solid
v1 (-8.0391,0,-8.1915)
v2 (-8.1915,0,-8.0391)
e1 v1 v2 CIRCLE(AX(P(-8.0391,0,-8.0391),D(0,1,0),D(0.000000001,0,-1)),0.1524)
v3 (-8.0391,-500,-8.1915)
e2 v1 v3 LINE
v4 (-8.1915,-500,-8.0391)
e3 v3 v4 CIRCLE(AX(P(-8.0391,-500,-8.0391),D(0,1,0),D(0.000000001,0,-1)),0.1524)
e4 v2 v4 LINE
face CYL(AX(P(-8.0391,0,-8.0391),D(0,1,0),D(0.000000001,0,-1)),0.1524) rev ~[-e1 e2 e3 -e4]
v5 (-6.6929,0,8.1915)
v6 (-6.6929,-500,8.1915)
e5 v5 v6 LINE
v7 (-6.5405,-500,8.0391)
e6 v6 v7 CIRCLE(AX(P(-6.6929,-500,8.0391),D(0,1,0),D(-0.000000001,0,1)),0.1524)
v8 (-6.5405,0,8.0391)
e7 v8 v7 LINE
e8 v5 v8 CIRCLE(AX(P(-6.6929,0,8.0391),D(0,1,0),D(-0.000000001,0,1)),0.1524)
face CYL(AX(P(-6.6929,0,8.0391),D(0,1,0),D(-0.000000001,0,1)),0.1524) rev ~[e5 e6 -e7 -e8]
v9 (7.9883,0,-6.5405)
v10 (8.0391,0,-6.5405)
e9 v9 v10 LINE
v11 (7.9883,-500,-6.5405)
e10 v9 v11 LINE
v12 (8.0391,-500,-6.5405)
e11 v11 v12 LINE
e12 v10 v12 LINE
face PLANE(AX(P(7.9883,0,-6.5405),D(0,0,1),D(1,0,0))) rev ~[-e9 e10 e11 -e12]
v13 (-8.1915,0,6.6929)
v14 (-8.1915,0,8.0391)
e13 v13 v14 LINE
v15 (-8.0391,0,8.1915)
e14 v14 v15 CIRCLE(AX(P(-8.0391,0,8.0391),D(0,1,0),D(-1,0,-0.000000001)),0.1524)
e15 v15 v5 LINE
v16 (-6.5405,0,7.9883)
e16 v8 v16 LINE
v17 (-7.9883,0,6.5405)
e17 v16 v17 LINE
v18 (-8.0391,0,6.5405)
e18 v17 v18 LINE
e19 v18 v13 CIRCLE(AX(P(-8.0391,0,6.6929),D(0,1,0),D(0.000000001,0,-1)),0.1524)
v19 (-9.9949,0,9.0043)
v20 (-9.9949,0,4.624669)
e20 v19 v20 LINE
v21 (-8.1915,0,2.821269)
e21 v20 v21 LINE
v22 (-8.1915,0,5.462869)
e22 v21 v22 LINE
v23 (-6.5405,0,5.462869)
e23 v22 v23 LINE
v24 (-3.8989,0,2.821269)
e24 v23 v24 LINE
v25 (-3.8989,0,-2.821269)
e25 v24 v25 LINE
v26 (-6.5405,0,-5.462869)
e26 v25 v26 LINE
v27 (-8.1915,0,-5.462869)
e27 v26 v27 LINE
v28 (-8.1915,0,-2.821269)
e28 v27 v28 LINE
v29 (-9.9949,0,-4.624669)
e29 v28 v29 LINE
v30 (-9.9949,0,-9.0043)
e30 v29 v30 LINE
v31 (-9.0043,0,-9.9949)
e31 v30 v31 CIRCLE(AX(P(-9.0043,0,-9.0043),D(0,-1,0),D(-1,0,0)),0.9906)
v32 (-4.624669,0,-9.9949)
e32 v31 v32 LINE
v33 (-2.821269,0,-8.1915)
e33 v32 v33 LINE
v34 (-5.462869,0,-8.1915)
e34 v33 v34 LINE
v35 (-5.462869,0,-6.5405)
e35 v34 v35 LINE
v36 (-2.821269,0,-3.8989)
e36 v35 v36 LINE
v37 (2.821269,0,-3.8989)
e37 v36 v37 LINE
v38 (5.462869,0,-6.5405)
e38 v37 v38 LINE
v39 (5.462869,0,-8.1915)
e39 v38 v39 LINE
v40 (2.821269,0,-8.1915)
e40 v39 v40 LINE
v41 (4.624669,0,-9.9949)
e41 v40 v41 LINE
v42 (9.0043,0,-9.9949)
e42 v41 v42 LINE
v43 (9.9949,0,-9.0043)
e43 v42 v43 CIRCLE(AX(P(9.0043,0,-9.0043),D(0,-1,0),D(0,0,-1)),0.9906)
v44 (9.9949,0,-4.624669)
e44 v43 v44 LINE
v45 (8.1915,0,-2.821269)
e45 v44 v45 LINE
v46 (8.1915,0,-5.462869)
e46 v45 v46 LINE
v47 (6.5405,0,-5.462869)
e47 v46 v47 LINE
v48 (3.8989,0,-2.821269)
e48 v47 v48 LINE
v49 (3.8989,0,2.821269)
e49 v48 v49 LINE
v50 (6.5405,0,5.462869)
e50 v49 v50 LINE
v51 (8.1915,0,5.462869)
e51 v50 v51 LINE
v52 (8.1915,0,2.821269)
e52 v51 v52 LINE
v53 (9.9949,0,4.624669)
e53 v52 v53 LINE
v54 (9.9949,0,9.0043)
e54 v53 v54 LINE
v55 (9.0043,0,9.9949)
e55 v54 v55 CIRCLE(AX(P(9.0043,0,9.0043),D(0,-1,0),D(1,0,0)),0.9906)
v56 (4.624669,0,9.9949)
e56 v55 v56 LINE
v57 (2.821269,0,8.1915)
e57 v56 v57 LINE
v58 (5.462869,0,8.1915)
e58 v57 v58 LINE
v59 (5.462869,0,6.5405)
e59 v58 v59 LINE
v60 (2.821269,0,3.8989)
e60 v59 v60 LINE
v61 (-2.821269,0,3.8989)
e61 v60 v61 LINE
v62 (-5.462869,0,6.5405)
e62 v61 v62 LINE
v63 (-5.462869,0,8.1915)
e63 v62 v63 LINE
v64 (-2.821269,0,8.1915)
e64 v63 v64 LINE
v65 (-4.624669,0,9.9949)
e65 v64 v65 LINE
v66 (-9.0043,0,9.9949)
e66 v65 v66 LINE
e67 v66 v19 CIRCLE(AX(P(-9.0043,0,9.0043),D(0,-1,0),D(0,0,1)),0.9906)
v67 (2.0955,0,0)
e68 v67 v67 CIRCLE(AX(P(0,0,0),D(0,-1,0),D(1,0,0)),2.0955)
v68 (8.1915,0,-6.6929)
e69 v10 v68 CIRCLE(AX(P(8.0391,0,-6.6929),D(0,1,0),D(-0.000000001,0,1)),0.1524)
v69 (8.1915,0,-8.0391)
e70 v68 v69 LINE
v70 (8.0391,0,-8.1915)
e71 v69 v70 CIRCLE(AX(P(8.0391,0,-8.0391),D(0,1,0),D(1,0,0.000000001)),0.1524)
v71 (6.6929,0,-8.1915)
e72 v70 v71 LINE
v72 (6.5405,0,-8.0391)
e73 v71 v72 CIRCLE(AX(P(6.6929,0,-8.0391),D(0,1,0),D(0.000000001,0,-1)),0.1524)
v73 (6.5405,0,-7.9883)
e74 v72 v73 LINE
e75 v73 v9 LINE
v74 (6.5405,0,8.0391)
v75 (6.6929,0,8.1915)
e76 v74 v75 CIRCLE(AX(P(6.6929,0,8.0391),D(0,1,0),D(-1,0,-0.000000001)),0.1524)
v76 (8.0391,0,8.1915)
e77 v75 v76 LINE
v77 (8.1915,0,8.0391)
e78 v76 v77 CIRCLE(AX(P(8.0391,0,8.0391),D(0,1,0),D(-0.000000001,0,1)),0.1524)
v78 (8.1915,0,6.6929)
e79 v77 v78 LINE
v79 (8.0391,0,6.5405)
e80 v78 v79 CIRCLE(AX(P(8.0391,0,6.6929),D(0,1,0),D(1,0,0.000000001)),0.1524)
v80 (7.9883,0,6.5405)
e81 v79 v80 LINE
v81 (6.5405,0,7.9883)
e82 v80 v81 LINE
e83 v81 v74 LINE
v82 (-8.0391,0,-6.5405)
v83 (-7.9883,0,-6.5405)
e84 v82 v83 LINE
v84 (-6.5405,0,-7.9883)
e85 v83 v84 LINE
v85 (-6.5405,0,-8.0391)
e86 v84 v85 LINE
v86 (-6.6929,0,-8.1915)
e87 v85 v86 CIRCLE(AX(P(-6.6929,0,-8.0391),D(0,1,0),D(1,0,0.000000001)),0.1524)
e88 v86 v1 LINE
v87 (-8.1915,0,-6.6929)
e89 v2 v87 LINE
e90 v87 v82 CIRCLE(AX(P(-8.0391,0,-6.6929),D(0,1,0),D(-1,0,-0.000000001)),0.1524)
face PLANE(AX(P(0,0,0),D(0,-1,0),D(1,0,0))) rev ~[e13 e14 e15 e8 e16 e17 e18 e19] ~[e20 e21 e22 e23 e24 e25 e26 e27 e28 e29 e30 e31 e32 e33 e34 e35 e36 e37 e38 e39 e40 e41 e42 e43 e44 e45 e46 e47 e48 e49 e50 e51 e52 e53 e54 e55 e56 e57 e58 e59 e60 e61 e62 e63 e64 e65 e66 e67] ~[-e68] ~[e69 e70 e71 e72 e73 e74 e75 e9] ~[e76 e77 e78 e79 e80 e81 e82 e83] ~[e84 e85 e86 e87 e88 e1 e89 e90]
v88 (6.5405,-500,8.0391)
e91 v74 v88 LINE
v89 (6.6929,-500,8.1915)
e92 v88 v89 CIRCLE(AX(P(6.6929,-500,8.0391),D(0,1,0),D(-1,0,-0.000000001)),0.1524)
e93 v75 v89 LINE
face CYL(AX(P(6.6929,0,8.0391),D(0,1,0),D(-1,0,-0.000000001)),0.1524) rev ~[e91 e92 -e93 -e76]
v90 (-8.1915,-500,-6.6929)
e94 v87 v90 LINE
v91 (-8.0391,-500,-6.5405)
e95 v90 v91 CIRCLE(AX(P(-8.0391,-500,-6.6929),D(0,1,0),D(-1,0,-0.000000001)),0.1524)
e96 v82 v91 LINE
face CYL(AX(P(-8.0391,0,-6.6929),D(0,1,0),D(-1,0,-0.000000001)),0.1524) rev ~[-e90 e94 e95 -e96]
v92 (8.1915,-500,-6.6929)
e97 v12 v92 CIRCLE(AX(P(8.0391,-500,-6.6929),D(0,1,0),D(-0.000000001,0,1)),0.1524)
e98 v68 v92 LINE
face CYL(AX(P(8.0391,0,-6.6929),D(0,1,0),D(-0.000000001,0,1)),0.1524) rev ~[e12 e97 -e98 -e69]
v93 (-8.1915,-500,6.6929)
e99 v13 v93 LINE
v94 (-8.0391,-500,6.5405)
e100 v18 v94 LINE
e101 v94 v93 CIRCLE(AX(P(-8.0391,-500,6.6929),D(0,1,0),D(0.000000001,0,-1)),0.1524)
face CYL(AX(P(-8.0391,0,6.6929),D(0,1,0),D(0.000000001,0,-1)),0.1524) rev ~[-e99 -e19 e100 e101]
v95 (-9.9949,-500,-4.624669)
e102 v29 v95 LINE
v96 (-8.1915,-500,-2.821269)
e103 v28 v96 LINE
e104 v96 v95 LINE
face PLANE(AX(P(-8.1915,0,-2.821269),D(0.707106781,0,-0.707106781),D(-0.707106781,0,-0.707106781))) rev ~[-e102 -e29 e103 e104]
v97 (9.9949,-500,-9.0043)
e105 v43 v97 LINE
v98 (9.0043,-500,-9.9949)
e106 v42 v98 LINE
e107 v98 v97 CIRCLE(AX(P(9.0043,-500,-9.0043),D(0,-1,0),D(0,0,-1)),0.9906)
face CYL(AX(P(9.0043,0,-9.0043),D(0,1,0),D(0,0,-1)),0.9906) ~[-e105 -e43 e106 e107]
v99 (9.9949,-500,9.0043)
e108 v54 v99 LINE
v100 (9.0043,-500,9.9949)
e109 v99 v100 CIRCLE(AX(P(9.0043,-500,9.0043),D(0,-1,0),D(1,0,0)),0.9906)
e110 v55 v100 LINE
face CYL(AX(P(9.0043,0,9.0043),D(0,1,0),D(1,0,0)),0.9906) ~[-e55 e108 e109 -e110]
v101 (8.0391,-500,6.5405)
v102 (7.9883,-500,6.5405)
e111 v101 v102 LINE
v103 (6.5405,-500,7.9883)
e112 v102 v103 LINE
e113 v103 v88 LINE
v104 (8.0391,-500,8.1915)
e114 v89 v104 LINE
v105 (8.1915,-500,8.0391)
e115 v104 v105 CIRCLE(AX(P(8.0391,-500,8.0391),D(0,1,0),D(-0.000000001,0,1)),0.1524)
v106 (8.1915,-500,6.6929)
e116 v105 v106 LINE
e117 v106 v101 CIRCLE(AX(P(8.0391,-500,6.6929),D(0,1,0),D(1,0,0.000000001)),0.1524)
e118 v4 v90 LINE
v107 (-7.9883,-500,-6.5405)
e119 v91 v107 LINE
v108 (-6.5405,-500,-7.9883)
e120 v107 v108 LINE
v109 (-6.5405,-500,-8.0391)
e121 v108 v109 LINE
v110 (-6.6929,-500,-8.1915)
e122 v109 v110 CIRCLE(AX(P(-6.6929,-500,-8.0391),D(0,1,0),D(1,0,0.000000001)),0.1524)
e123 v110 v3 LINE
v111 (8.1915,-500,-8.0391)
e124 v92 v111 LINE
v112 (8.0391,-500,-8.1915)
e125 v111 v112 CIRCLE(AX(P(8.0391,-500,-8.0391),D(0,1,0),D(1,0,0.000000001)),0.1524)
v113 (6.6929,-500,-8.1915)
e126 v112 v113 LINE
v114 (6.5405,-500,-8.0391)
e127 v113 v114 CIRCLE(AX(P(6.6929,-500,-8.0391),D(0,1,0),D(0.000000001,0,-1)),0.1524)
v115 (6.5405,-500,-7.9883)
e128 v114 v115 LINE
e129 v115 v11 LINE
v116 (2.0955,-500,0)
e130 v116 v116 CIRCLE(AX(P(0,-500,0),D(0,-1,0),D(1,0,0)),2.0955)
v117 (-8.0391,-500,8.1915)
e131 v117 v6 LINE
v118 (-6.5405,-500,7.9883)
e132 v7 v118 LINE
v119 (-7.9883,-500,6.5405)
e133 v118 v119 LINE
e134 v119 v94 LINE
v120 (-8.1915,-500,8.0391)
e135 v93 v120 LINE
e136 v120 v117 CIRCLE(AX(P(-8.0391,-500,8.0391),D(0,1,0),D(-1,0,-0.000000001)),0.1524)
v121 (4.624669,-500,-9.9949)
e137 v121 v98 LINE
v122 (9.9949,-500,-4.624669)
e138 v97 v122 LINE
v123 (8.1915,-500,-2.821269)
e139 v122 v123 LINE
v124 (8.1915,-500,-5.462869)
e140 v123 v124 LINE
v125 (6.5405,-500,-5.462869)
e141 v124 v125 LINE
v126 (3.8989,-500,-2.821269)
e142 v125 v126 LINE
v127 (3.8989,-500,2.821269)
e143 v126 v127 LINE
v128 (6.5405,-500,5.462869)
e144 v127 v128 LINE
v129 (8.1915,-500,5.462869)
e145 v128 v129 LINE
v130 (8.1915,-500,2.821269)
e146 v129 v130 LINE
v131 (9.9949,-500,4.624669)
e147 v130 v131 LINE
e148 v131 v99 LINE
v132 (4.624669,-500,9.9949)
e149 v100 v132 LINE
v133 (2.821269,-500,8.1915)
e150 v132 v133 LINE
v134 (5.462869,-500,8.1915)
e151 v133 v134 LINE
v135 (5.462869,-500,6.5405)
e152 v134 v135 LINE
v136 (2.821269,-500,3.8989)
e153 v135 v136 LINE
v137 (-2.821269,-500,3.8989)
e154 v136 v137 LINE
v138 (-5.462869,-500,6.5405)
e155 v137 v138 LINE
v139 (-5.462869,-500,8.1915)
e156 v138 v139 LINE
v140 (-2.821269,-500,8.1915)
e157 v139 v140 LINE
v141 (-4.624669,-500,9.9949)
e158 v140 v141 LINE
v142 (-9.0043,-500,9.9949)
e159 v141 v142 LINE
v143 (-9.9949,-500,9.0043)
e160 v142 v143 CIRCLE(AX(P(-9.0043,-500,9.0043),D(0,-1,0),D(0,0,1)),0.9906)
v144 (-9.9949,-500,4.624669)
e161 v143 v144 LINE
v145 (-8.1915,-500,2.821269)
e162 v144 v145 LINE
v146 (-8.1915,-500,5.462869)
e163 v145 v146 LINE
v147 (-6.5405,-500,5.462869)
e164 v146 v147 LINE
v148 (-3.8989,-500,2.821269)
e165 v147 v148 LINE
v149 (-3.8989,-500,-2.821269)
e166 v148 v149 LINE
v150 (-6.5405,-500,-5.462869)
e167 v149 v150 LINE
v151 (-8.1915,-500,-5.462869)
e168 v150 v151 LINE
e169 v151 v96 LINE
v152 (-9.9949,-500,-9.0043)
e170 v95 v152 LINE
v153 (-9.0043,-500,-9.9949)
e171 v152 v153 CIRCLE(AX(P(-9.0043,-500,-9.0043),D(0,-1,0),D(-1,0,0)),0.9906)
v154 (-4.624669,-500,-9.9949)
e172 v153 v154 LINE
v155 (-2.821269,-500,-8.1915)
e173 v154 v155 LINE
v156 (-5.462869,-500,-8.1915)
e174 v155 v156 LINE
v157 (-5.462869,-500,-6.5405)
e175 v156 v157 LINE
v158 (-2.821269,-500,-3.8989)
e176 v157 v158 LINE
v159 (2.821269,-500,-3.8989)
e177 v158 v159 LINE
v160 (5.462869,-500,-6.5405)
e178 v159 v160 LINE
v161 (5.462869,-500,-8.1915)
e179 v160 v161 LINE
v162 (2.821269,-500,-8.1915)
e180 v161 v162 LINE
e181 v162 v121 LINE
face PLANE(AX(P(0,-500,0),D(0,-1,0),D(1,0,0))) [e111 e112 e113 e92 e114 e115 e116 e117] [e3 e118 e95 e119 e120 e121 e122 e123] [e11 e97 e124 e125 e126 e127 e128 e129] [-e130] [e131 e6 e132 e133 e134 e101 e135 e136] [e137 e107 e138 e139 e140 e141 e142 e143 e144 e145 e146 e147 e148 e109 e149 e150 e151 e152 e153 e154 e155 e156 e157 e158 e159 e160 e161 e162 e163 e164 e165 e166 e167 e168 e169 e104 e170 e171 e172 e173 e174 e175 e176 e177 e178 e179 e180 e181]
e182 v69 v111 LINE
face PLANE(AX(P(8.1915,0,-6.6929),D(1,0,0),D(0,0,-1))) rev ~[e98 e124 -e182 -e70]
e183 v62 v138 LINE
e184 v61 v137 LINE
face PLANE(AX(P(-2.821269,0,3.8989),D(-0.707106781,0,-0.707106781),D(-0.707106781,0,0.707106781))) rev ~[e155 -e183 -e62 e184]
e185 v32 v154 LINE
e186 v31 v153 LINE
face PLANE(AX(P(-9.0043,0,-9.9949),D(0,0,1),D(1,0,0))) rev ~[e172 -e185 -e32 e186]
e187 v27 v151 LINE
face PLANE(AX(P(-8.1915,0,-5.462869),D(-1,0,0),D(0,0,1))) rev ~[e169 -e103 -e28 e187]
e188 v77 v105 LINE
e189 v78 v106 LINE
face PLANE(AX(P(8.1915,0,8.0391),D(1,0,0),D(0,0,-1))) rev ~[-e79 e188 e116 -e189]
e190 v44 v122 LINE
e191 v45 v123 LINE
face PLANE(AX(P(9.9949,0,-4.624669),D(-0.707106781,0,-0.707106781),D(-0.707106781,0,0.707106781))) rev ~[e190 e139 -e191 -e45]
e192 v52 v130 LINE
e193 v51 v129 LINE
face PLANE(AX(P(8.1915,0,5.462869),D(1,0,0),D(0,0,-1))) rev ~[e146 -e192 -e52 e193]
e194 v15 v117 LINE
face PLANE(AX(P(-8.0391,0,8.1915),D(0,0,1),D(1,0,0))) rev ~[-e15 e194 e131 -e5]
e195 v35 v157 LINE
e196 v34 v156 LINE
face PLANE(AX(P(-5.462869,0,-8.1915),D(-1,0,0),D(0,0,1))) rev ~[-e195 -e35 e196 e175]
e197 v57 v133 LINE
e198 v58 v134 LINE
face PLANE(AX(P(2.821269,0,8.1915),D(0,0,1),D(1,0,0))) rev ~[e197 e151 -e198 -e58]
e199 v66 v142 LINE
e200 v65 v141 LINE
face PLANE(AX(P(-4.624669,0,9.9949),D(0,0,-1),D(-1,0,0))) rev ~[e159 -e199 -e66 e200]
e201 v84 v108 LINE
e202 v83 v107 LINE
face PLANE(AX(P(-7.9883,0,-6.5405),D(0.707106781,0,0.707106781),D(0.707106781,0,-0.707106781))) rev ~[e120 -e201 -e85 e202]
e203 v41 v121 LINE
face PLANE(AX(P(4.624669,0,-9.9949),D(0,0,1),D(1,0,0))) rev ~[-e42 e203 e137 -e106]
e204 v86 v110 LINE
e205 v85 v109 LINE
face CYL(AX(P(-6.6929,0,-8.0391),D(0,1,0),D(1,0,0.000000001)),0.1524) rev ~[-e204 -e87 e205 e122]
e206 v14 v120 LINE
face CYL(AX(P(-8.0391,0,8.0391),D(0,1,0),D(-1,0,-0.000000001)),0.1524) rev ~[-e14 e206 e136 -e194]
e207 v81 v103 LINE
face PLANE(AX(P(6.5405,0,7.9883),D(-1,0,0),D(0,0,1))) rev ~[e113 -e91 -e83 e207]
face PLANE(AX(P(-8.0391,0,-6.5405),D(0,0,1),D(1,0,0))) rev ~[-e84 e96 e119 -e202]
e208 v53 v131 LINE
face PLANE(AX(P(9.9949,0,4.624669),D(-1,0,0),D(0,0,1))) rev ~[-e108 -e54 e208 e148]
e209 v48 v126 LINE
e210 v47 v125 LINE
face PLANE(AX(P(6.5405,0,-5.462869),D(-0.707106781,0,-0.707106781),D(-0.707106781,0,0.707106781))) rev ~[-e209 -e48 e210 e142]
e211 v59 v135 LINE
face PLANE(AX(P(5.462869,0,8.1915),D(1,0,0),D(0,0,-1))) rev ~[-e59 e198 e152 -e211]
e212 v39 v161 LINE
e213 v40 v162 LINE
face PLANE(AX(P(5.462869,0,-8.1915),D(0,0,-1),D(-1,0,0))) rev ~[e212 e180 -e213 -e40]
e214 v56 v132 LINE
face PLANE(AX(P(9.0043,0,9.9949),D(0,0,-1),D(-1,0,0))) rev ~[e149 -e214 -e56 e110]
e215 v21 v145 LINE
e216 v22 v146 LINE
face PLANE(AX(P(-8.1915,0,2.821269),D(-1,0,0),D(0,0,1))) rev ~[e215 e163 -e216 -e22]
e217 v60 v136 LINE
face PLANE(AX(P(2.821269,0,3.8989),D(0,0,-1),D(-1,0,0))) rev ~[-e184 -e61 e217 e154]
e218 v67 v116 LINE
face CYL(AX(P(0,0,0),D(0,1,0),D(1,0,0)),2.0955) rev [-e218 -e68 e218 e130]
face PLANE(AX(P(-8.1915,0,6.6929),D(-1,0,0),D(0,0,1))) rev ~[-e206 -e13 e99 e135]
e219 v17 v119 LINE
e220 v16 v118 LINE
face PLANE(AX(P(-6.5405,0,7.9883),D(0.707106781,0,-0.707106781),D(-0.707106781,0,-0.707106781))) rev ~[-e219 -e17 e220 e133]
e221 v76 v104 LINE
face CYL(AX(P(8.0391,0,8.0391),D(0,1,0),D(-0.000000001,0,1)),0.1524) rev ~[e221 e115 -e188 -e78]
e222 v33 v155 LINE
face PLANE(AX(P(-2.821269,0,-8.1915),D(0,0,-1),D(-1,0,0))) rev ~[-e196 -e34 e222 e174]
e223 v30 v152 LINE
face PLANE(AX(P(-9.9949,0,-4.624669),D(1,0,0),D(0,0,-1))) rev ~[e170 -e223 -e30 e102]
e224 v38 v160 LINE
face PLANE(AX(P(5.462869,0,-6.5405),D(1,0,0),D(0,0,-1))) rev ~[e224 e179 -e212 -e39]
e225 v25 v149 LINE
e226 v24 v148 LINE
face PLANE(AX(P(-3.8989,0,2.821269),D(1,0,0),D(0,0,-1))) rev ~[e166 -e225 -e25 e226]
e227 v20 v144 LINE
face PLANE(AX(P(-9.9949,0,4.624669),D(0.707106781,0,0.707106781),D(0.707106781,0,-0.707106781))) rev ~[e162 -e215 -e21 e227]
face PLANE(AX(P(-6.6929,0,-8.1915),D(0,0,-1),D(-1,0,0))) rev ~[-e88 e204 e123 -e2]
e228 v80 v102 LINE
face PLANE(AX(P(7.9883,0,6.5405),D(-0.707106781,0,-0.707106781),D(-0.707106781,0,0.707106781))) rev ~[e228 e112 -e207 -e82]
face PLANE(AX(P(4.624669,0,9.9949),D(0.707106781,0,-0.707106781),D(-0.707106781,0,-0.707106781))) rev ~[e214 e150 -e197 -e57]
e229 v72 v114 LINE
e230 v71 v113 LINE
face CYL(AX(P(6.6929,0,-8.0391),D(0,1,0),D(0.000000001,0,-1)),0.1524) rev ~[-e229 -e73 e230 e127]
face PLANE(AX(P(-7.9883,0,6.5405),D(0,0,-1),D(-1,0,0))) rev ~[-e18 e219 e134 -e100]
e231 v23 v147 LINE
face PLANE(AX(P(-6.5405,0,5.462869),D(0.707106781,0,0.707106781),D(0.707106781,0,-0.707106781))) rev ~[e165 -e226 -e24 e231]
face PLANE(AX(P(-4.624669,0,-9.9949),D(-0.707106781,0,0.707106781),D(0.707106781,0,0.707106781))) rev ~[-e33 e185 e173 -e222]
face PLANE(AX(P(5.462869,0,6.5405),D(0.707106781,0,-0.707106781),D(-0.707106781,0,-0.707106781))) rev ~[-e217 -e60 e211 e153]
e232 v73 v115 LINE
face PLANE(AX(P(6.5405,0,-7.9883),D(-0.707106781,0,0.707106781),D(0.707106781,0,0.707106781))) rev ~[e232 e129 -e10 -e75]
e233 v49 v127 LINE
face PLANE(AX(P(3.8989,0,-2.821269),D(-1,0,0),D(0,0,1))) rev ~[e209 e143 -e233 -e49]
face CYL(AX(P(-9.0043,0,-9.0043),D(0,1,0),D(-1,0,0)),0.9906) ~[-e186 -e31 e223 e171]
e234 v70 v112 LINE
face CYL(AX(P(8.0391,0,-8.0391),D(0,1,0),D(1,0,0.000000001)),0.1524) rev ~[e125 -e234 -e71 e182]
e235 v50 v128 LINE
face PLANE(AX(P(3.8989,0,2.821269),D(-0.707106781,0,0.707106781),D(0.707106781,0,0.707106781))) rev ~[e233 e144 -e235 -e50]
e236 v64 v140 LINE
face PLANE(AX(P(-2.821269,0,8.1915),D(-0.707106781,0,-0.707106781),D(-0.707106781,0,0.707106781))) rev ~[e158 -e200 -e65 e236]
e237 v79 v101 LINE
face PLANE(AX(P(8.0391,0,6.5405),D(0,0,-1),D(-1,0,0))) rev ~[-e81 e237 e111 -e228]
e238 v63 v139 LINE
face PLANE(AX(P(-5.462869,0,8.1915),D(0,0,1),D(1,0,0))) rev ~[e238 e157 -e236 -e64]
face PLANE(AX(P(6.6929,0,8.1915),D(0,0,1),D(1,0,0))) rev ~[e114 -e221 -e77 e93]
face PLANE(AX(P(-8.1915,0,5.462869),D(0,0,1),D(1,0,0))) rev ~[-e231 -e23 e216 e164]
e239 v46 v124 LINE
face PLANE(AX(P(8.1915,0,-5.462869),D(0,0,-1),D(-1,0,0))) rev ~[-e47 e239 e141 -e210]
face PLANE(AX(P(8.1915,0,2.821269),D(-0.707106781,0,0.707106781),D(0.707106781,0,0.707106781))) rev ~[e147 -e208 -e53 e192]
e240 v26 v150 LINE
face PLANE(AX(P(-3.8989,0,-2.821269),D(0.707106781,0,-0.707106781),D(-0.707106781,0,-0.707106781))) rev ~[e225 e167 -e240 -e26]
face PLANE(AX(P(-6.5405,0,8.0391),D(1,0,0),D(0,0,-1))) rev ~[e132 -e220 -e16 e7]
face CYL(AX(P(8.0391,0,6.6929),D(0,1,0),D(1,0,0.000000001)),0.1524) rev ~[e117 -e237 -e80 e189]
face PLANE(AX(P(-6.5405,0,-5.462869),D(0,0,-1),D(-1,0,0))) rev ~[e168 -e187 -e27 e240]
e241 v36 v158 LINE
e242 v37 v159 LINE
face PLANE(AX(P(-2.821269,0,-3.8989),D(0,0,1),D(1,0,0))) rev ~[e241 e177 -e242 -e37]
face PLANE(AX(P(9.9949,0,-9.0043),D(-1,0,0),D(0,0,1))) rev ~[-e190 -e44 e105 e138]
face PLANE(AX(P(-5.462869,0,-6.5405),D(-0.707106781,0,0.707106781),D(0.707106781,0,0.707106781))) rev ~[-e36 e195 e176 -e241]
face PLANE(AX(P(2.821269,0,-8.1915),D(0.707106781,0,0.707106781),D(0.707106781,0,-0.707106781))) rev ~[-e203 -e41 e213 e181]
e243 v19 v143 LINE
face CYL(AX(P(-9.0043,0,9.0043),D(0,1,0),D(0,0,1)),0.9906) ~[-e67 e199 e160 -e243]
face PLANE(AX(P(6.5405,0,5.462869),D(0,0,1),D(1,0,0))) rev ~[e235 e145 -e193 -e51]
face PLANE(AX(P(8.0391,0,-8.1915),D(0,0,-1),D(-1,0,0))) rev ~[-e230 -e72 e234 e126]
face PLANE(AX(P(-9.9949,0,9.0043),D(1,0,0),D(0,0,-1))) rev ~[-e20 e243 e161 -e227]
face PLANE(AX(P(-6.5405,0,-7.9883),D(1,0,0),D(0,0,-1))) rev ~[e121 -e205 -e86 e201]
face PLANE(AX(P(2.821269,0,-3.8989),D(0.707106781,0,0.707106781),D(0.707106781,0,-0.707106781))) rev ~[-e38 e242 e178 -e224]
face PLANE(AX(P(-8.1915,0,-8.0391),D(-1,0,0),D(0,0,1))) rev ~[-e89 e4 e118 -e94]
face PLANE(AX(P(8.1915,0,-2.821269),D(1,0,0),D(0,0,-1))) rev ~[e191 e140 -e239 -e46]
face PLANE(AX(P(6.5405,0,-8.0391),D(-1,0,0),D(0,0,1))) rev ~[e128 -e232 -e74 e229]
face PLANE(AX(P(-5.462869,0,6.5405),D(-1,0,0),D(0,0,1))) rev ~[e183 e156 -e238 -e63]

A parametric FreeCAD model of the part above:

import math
import FreeCAD as App
import Part
import Sketcher

V = App.Vector
Q = App.Units.Quantity

doc = App.newDocument("Part")
body = doc.addObject("PartDesign::Body", "Body")

# Sketch on XZ plane
sketch1 = doc.addObject("Sketcher::SketchObject", "Sketch")
body.addObject(sketch1)
sketch1.AttachmentSupport = (doc.XZ_Plane, [""])
sketch1.MapMode = "FlatFace"
sketch1.addGeometry(Part.LineSegment(V(-4.624669, 9.9949, 0), V(-9.0043, 9.9949, 0)), False)
sketch1.addGeometry(Part.ArcOfCircle(Part.Circle(V(-9.0043, 9.0043, 0), V(0, 0, 1), 0.9906), math.radians(90), math.radians(180)), False)
sketch1.addGeometry(Part.LineSegment(V(-9.9949, 9.0043, 0), V(-9.9949, 4.624669, 0)), False)
sketch1.addGeometry(Part.LineSegment(V(-9.9949, 4.624669, 0), V(-8.1915, 2.821269, 0)), False)
sketch1.addGeometry(Part.LineSegment(V(-8.1915, 2.821269, 0), V(-8.1915, 5.462869, 0)), False)
sketch1.addGeometry(Part.LineSegment(V(-8.1915, 5.462869, 0), V(-6.5405, 5.462869, 0)), False)
sketch1.addGeometry(Part.LineSegment(V(-6.5405, 5.462869, 0), V(-3.8989, 2.821269, 0)), False)
sketch1.addGeometry(Part.LineSegment(V(-3.8989, 2.821269, 0), V(-3.8989, -2.821269, 0)), False)
sketch1.addGeometry(Part.LineSegment(V(-3.8989, -2.821269, 0), V(-6.5405, -5.462869, 0)), False)
sketch1.addGeometry(Part.LineSegment(V(-6.5405, -5.462869, 0), V(-8.1915, -5.462869, 0)), False)
sketch1.addGeometry(Part.LineSegment(V(-8.1915, -5.462869, 0), V(-8.1915, -2.821269, 0)), False)
sketch1.addGeometry(Part.LineSegment(V(-8.1915, -2.821269, 0), V(-9.9949, -4.624669, 0)), False)
sketch1.addGeometry(Part.LineSegment(V(-9.9949, -4.624669, 0), V(-9.9949, -9.0043, 0)), False)
sketch1.addGeometry(Part.ArcOfCircle(Part.Circle(V(-9.0043, -9.0043, 0), V(0, 0, 1), 0.9906), math.radians(180), math.radians(270)), False)
sketch1.addGeometry(Part.LineSegment(V(-9.0043, -9.9949, 0), V(-4.624669, -9.9949, 0)), False)
sketch1.addGeometry(Part.LineSegment(V(-4.624669, -9.9949, 0), V(-2.821269, -8.1915, 0)), False)
sketch1.addGeometry(Part.LineSegment(V(-2.821269, -8.1915, 0), V(-5.462869, -8.1915, 0)), False)
sketch1.addGeometry(Part.LineSegment(V(-5.462869, -8.1915, 0), V(-5.462869, -6.5405, 0)), False)
sketch1.addGeometry(Part.LineSegment(V(-5.462869, -6.5405, 0), V(-2.821269, -3.8989, 0)), False)
sketch1.addGeometry(Part.LineSegment(V(-2.821269, -3.8989, 0), V(2.821269, -3.8989, 0)), False)
sketch1.addGeometry(Part.LineSegment(V(2.821269, -3.8989, 0), V(5.462869, -6.5405, 0)), False)
sketch1.addGeometry(Part.LineSegment(V(5.462869, -6.5405, 0), V(5.462869, -8.1915, 0)), False)
sketch1.addGeometry(Part.LineSegment(V(5.462869, -8.1915, 0), V(2.821269, -8.1915, 0)), False)
sketch1.addGeometry(Part.LineSegment(V(2.821269, -8.1915, 0), V(4.624669, -9.9949, 0)), False)
sketch1.addGeometry(Part.LineSegment(V(4.624669, -9.9949, 0), V(9.0043, -9.9949, 0)), False)
sketch1.addGeometry(Part.ArcOfCircle(Part.Circle(V(9.0043, -9.0043, 0), V(0, 0, 1), 0.9906), math.radians(-90), math.radians(0)), False)
sketch1.addGeometry(Part.LineSegment(V(9.9949, -9.0043, 0), V(9.9949, -4.624669, 0)), False)
sketch1.addGeometry(Part.LineSegment(V(9.9949, -4.624669, 0), V(8.1915, -2.821269, 0)), False)
sketch1.addGeometry(Part.LineSegment(V(8.1915, -2.821269, 0), V(8.1915, -5.462869, 0)), False)
sketch1.addGeometry(Part.LineSegment(V(8.1915, -5.462869, 0), V(6.5405, -5.462869, 0)), False)
sketch1.addGeometry(Part.LineSegment(V(6.5405, -5.462869, 0), V(3.8989, -2.821269, 0)), False)
sketch1.addGeometry(Part.LineSegment(V(3.8989, -2.821269, 0), V(3.8989, 2.821269, 0)), False)
sketch1.addGeometry(Part.LineSegment(V(3.8989, 2.821269, 0), V(6.5405, 5.462869, 0)), False)
sketch1.addGeometry(Part.LineSegment(V(6.5405, 5.462869, 0), V(8.1915, 5.462869, 0)), False)
sketch1.addGeometry(Part.LineSegment(V(8.1915, 5.462869, 0), V(8.1915, 2.821269, 0)), False)
sketch1.addGeometry(Part.LineSegment(V(8.1915, 2.821269, 0), V(9.9949, 4.624669, 0)), False)
sketch1.addGeometry(Part.LineSegment(V(9.9949, 4.624669, 0), V(9.9949, 9.0043, 0)), False)
sketch1.addGeometry(Part.ArcOfCircle(Part.Circle(V(9.0043, 9.0043, 0), V(0, 0, 1), 0.9906), math.radians(0), math.radians(90)), False)
sketch1.addGeometry(Part.LineSegment(V(9.0043, 9.9949, 0), V(4.624669, 9.9949, 0)), False)
sketch1.addGeometry(Part.LineSegment(V(4.624669, 9.9949, 0), V(2.821269, 8.1915, 0)), False)
sketch1.addGeometry(Part.LineSegment(V(2.821269, 8.1915, 0), V(5.462869, 8.1915, 0)), False)
sketch1.addGeometry(Part.LineSegment(V(5.462869, 8.1915, 0), V(5.462869, 6.5405, 0)), False)
sketch1.addGeometry(Part.LineSegment(V(5.462869, 6.5405, 0), V(2.821269, 3.8989, 0)), False)
sketch1.addGeometry(Part.LineSegment(V(2.821269, 3.8989, 0), V(-2.821269, 3.8989, 0)), False)
sketch1.addGeometry(Part.LineSegment(V(-2.821269, 3.8989, 0), V(-5.462869, 6.5405, 0)), False)
sketch1.addGeometry(Part.LineSegment(V(-5.462869, 6.5405, 0), V(-5.462869, 8.1915, 0)), False)
sketch1.addGeometry(Part.LineSegment(V(-5.462869, 8.1915, 0), V(-2.821269, 8.1915, 0)), False)
sketch1.addGeometry(Part.LineSegment(V(-2.821269, 8.1915, 0), V(-4.624669, 9.9949, 0)), False)
sketch1.addGeometry(Part.LineSegment(V(-6.6929, -8.1915, 0), V(-8.0391, -8.1915, 0)), False)
sketch1.addGeometry(Part.ArcOfCircle(Part.Circle(V(-8.0391, -8.0391, 0), V(0, 0, 1), 0.1524), math.radians(180), math.radians(270)), False)
sketch1.addGeometry(Part.LineSegment(V(-8.1915, -8.0391, 0), V(-8.1915, -6.6929, 0)), False)
sketch1.addGeometry(Part.ArcOfCircle(Part.Circle(V(-8.0391, -6.6929, 0), V(0, 0, 1), 0.1524), math.radians(90), math.radians(180)), False)
sketch1.addGeometry(Part.LineSegment(V(-8.0391, -6.5405, 0), V(-7.9883, -6.5405, 0)), False)
sketch1.addGeometry(Part.LineSegment(V(-7.9883, -6.5405, 0), V(-6.5405, -7.9883, 0)), False)
sketch1.addGeometry(Part.LineSegment(V(-6.5405, -7.9883, 0), V(-6.5405, -8.0391, 0)), False)
sketch1.addGeometry(Part.ArcOfCircle(Part.Circle(V(-6.6929, -8.0391, 0), V(0, 0, 1), 0.1524), math.radians(-90), math.radians(0)), False)
sketch1.addGeometry(Part.ArcOfCircle(Part.Circle(V(8.0391, -6.6929, 0), V(0, 0, 1), 0.1524), math.radians(0), math.radians(90)), False)
sketch1.addGeometry(Part.LineSegment(V(8.1915, -6.6929, 0), V(8.1915, -8.0391, 0)), False)
sketch1.addGeometry(Part.ArcOfCircle(Part.Circle(V(8.0391, -8.0391, 0), V(0, 0, 1), 0.1524), math.radians(-90), math.radians(0)), False)
sketch1.addGeometry(Part.LineSegment(V(8.0391, -8.1915, 0), V(6.6929, -8.1915, 0)), False)
sketch1.addGeometry(Part.ArcOfCircle(Part.Circle(V(6.6929, -8.0391, 0), V(0, 0, 1), 0.1524), math.radians(180), math.radians(270)), False)
sketch1.addGeometry(Part.LineSegment(V(6.5405, -8.0391, 0), V(6.5405, -7.9883, 0)), False)
sketch1.addGeometry(Part.LineSegment(V(6.5405, -7.9883, 0), V(7.9883, -6.5405, 0)), False)
sketch1.addGeometry(Part.LineSegment(V(7.9883, -6.5405, 0), V(8.0391, -6.5405, 0)), False)
sketch1.addGeometry(Part.LineSegment(V(-6.5405, 7.9883, 0), V(-7.9883, 6.5405, 0)), False)
sketch1.addGeometry(Part.LineSegment(V(-7.9883, 6.5405, 0), V(-8.0391, 6.5405, 0)), False)
sketch1.addGeometry(Part.ArcOfCircle(Part.Circle(V(-8.0391, 6.6929, 0), V(0, 0, 1), 0.1524), math.radians(180), math.radians(270)), False)
sketch1.addGeometry(Part.LineSegment(V(-8.1915, 6.6929, 0), V(-8.1915, 8.0391, 0)), False)
sketch1.addGeometry(Part.ArcOfCircle(Part.Circle(V(-8.0391, 8.0391, 0), V(0, 0, 1), 0.1524), math.radians(90), math.radians(180)), False)
sketch1.addGeometry(Part.LineSegment(V(-8.0391, 8.1915, 0), V(-6.6929, 8.1915, 0)), False)
sketch1.addGeometry(Part.ArcOfCircle(Part.Circle(V(-6.6929, 8.0391, 0), V(0, 0, 1), 0.1524), math.radians(0), math.radians(90)), False)
sketch1.addGeometry(Part.LineSegment(V(-6.5405, 8.0391, 0), V(-6.5405, 7.9883, 0)), False)
sketch1.addGeometry(Part.Circle(V(0, 0, 0), V(0, 0, 1), 2.0955), False)
sketch1.addGeometry(Part.LineSegment(V(8.1915, 8.0391, 0), V(8.1915, 6.6929, 0)), False)
sketch1.addGeometry(Part.ArcOfCircle(Part.Circle(V(8.0391, 6.6929, 0), V(0, 0, 1), 0.1524), math.radians(-90), math.radians(0)), False)
sketch1.addGeometry(Part.LineSegment(V(8.0391, 6.5405, 0), V(7.9883, 6.5405, 0)), False)
sketch1.addGeometry(Part.LineSegment(V(7.9883, 6.5405, 0), V(6.5405, 7.9883, 0)), False)
sketch1.addGeometry(Part.LineSegment(V(6.5405, 7.9883, 0), V(6.5405, 8.0391, 0)), False)
sketch1.addGeometry(Part.ArcOfCircle(Part.Circle(V(6.6929, 8.0391, 0), V(0, 0, 1), 0.1524), math.radians(90), math.radians(180)), False)
sketch1.addGeometry(Part.LineSegment(V(6.6929, 8.1915, 0), V(8.0391, 8.1915, 0)), False)
sketch1.addGeometry(Part.ArcOfCircle(Part.Circle(V(8.0391, 8.0391, 0), V(0, 0, 1), 0.1524), math.radians(0), math.radians(90)), False)
sketch1.addConstraint(Sketcher.Constraint("Tangent", 0, 2, 1, 1))
sketch1.addConstraint(Sketcher.Constraint("Tangent", 1, 2, 2, 1))
sketch1.addConstraint(Sketcher.Constraint("Coincident", 2, 2, 3, 1))
sketch1.addConstraint(Sketcher.Constraint("Coincident", 3, 2, 4, 1))
sketch1.addConstraint(Sketcher.Constraint("Coincident", 4, 2, 5, 1))
sketch1.addConstraint(Sketcher.Constraint("Coincident", 5, 2, 6, 1))
sketch1.addConstraint(Sketcher.Constraint("Coincident", 6, 2, 7, 1))
sketch1.addConstraint(Sketcher.Constraint("Coincident", 7, 2, 8, 1))
sketch1.addConstraint(Sketcher.Constraint("Coincident", 8, 2, 9, 1))
sketch1.addConstraint(Sketcher.Constraint("Coincident", 9, 2, 10, 1))
sketch1.addConstraint(Sketcher.Constraint("Coincident", 10, 2, 11, 1))
sketch1.addConstraint(Sketcher.Constraint("Coincident", 11, 2, 12, 1))
sketch1.addConstraint(Sketcher.Constraint("Tangent", 12, 2, 13, 1))
sketch1.addConstraint(Sketcher.Constraint("Tangent", 13, 2, 14, 1))
sketch1.addConstraint(Sketcher.Constraint("Coincident", 14, 2, 15, 1))
sketch1.addConstraint(Sketcher.Constraint("Coincident", 15, 2, 16, 1))
sketch1.addConstraint(Sketcher.Constraint("Coincident", 16, 2, 17, 1))
sketch1.addConstraint(Sketcher.Constraint("Coincident", 17, 2, 18, 1))
sketch1.addConstraint(Sketcher.Constraint("Coincident", 18, 2, 19, 1))
sketch1.addConstraint(Sketcher.Constraint("Coincident", 19, 2, 20, 1))
sketch1.addConstraint(Sketcher.Constraint("Coincident", 20, 2, 21, 1))
sketch1.addConstraint(Sketcher.Constraint("Coincident", 21, 2, 22, 1))
sketch1.addConstraint(Sketcher.Constraint("Coincident", 22, 2, 23, 1))
sketch1.addConstraint(Sketcher.Constraint("Coincident", 23, 2, 24, 1))
sketch1.addConstraint(Sketcher.Constraint("Tangent", 24, 2, 25, 1))
sketch1.addConstraint(Sketcher.Constraint("Tangent", 25, 2, 26, 1))
sketch1.addConstraint(Sketcher.Constraint("Coincident", 26, 2, 27, 1))
sketch1.addConstraint(Sketcher.Constraint("Coincident", 27, 2, 28, 1))
sketch1.addConstraint(Sketcher.Constraint("Coincident", 28, 2, 29, 1))
sketch1.addConstraint(Sketcher.Constraint("Coincident", 29, 2, 30, 1))
sketch1.addConstraint(Sketcher.Constraint("Coincident", 30, 2, 31, 1))
sketch1.addConstraint(Sketcher.Constraint("Coincident", 31, 2, 32, 1))
sketch1.addConstraint(Sketcher.Constraint("Coincident", 32, 2, 33, 1))
sketch1.addConstraint(Sketcher.Constraint("Coincident", 33, 2, 34, 1))
sketch1.addConstraint(Sketcher.Constraint("Coincident", 34, 2, 35, 1))
sketch1.addConstraint(Sketcher.Constraint("Coincident", 35, 2, 36, 1))
sketch1.addConstraint(Sketcher.Constraint("Tangent", 36, 2, 37, 1))
sketch1.addConstraint(Sketcher.Constraint("Tangent", 37, 2, 38, 1))
sketch1.addConstraint(Sketcher.Constraint("Coincident", 38, 2, 39, 1))
sketch1.addConstraint(Sketcher.Constraint("Coincident", 39, 2, 40, 1))
sketch1.addConstraint(Sketcher.Constraint("Coincident", 40, 2, 41, 1))
sketch1.addConstraint(Sketcher.Constraint("Coincident", 41, 2, 42, 1))
sketch1.addConstraint(Sketcher.Constraint("Coincident", 42, 2, 43, 1))
sketch1.addConstraint(Sketcher.Constraint("Coincident", 43, 2, 44, 1))
sketch1.addConstraint(Sketcher.Constraint("Coincident", 44, 2, 45, 1))
sketch1.addConstraint(Sketcher.Constraint("Coincident", 45, 2, 46, 1))
sketch1.addConstraint(Sketcher.Constraint("Coincident", 46, 2, 47, 1))
sketch1.addConstraint(Sketcher.Constraint("Coincident", 47, 2, 0, 1))
sketch1.addConstraint(Sketcher.Constraint("Tangent", 48, 2, 49, 2))
sketch1.addConstraint(Sketcher.Constraint("Tangent", 49, 1, 50, 1))
sketch1.addConstraint(Sketcher.Constraint("Tangent", 50, 2, 51, 2))
sketch1.addConstraint(Sketcher.Constraint("Tangent", 51, 1, 52, 1))
sketch1.addConstraint(Sketcher.Constraint("Coincident", 52, 2, 53, 1))
sketch1.addConstraint(Sketcher.Constraint("Coincident", 53, 2, 54, 1))
sketch1.addConstraint(Sketcher.Constraint("Tangent", 54, 2, 55, 2))
sketch1.addConstraint(Sketcher.Constraint("Tangent", 55, 1, 48, 1))
sketch1.addConstraint(Sketcher.Constraint("Tangent", 56, 1, 57, 1))
sketch1.addConstraint(Sketcher.Constraint("Tangent", 57, 2, 58, 2))
sketch1.addConstraint(Sketcher.Constraint("Tangent", 58, 1, 59, 1))
sketch1.addConstraint(Sketcher.Constraint("Tangent", 59, 2, 60, 2))
sketch1.addConstraint(Sketcher.Constraint("Tangent", 60, 1, 61, 1))
sketch1.addConstraint(Sketcher.Constraint("Coincident", 61, 2, 62, 1))
sketch1.addConstraint(Sketcher.Constraint("Coincident", 62, 2, 63, 1))
sketch1.addConstraint(Sketcher.Constraint("Tangent", 63, 2, 56, 2))
sketch1.addConstraint(Sketcher.Constraint("Coincident", 64, 2, 65, 1))
sketch1.addConstraint(Sketcher.Constraint("Tangent", 65, 2, 66, 2))
sketch1.addConstraint(Sketcher.Constraint("Tangent", 66, 1, 67, 1))
sketch1.addConstraint(Sketcher.Constraint("Tangent", 67, 2, 68, 2))
sketch1.addConstraint(Sketcher.Constraint("Tangent", 68, 1, 69, 1))
sketch1.addConstraint(Sketcher.Constraint("Tangent", 69, 2, 70, 2))
sketch1.addConstraint(Sketcher.Constraint("Tangent", 70, 1, 71, 1))
sketch1.addConstraint(Sketcher.Constraint("Coincident", 71, 2, 64, 1))
sketch1.addConstraint(Sketcher.Constraint("Tangent", 73, 2, 74, 2))
sketch1.addConstraint(Sketcher.Constraint("Tangent", 74, 1, 75, 1))
sketch1.addConstraint(Sketcher.Constraint("Coincident", 75, 2, 76, 1))
sketch1.addConstraint(Sketcher.Constraint("Coincident", 76, 2, 77, 1))
sketch1.addConstraint(Sketcher.Constraint("Tangent", 77, 2, 78, 2))
sketch1.addConstraint(Sketcher.Constraint("Tangent", 78, 1, 79, 1))
sketch1.addConstraint(Sketcher.Constraint("Tangent", 79, 2, 80, 2))
sketch1.addConstraint(Sketcher.Constraint("Tangent", 80, 1, 73, 1))
sketch1.addConstraint(Sketcher.Constraint("Horizontal", 0))
sketch1.addConstraint(Sketcher.Constraint("Vertical", 2))
sketch1.addConstraint(Sketcher.Constraint("Vertical", 4))
sketch1.addConstraint(Sketcher.Constraint("Horizontal", 5))
sketch1.addConstraint(Sketcher.Constraint("Vertical", 7))
sketch1.addConstraint(Sketcher.Constraint("Horizontal", 9))
sketch1.addConstraint(Sketcher.Constraint("Vertical", 10))
sketch1.addConstraint(Sketcher.Constraint("Vertical", 12))
sketch1.addConstraint(Sketcher.Constraint("Horizontal", 14))
sketch1.addConstraint(Sketcher.Constraint("Horizontal", 16))
sketch1.addConstraint(Sketcher.Constraint("Vertical", 17))
sketch1.addConstraint(Sketcher.Constraint("Horizontal", 19))
sketch1.addConstraint(Sketcher.Constraint("Vertical", 21))
sketch1.addConstraint(Sketcher.Constraint("Horizontal", 22))
sketch1.addConstraint(Sketcher.Constraint("Horizontal", 24))
sketch1.addConstraint(Sketcher.Constraint("Vertical", 26))
sketch1.addConstraint(Sketcher.Constraint("Vertical", 28))
sketch1.addConstraint(Sketcher.Constraint("Horizontal", 29))
sketch1.addConstraint(Sketcher.Constraint("Vertical", 31))
sketch1.addConstraint(Sketcher.Constraint("Horizontal", 33))
sketch1.addConstraint(Sketcher.Constraint("Vertical", 34))
sketch1.addConstraint(Sketcher.Constraint("Vertical", 36))
sketch1.addConstraint(Sketcher.Constraint("Horizontal", 38))
sketch1.addConstraint(Sketcher.Constraint("Horizontal", 40))
sketch1.addConstraint(Sketcher.Constraint("Vertical", 41))
sketch1.addConstraint(Sketcher.Constraint("Horizontal", 43))
sketch1.addConstraint(Sketcher.Constraint("Vertical", 45))
sketch1.addConstraint(Sketcher.Constraint("Horizontal", 46))
sketch1.addConstraint(Sketcher.Constraint("Horizontal", 48))
sketch1.addConstraint(Sketcher.Constraint("Vertical", 50))
sketch1.addConstraint(Sketcher.Constraint("Horizontal", 52))
sketch1.addConstraint(Sketcher.Constraint("Vertical", 54))
sketch1.addConstraint(Sketcher.Constraint("Vertical", 57))
sketch1.addConstraint(Sketcher.Constraint("Horizontal", 59))
sketch1.addConstraint(Sketcher.Constraint("Vertical", 61))
sketch1.addConstraint(Sketcher.Constraint("Horizontal", 63))
sketch1.addConstraint(Sketcher.Constraint("Horizontal", 65))
sketch1.addConstraint(Sketcher.Constraint("Vertical", 67))
sketch1.addConstraint(Sketcher.Constraint("Horizontal", 69))
sketch1.addConstraint(Sketcher.Constraint("Vertical", 71))
sketch1.addConstraint(Sketcher.Constraint("Vertical", 73))
sketch1.addConstraint(Sketcher.Constraint("Horizontal", 75))
sketch1.addConstraint(Sketcher.Constraint("Vertical", 77))
sketch1.addConstraint(Sketcher.Constraint("Horizontal", 79))
sketch1.addConstraint(Sketcher.Constraint("Coincident", 72, 3, -1, 1))
sketch1.addConstraint(Sketcher.Constraint("Equal", 1, 13))
sketch1.addConstraint(Sketcher.Constraint("Equal", 13, 25))
sketch1.addConstraint(Sketcher.Constraint("Equal", 25, 37))
sketch1.addConstraint(Sketcher.Constraint("Equal", 49, 51))
sketch1.addConstraint(Sketcher.Constraint("Equal", 51, 55))
sketch1.addConstraint(Sketcher.Constraint("Equal", 55, 56))
sketch1.addConstraint(Sketcher.Constraint("Equal", 56, 58))
sketch1.addConstraint(Sketcher.Constraint("Equal", 58, 60))
sketch1.addConstraint(Sketcher.Constraint("Equal", 60, 66))
sketch1.addConstraint(Sketcher.Constraint("Equal", 66, 68))
sketch1.addConstraint(Sketcher.Constraint("Equal", 68, 70))
sketch1.addConstraint(Sketcher.Constraint("Equal", 70, 74))
sketch1.addConstraint(Sketcher.Constraint("Equal", 74, 78))
sketch1.addConstraint(Sketcher.Constraint("Equal", 78, 80))
sketch1.addConstraint(Sketcher.Constraint("Symmetric", 1, 3, 25, 3, -1, 1))
sketch1.addConstraint(Sketcher.Constraint("Symmetric", 13, 3, 37, 3, -1, 1))
sketch1.addConstraint(Sketcher.Constraint("Symmetric", 56, 3, 66, 3, -1, 1))
sketch1.addConstraint(Sketcher.Constraint("Symmetric", 60, 3, 70, 3, -1, 1))
sketch1.addConstraint(Sketcher.Constraint("Symmetric", 51, 3, 74, 3, -1, 1))
sketch1.addConstraint(Sketcher.Constraint("Symmetric", 55, 3, 78, 3, -1, 1))
sketch1.addConstraint(Sketcher.Constraint("Symmetric", 3, 2, 27, 2, -1, 1))
sketch1.addConstraint(Sketcher.Constraint("Symmetric", 5, 2, 29, 2, -1, 1))
sketch1.addConstraint(Sketcher.Constraint("Symmetric", 6, 2, 30, 2, -1, 1))
sketch1.addConstraint(Sketcher.Constraint("Symmetric", 8, 2, 32, 2, -1, 1))
sketch1.addConstraint(Sketcher.Constraint("Symmetric", 10, 2, 34, 2, -1, 1))
sketch1.addConstraint(Sketcher.Constraint("Symmetric", 15, 2, 39, 2, -1, 1))
sketch1.addConstraint(Sketcher.Constraint("Symmetric", 17, 2, 41, 2, -1, 1))
sketch1.addConstraint(Sketcher.Constraint("Symmetric", 18, 2, 42, 2, -1, 1))
sketch1.addConstraint(Sketcher.Constraint("Symmetric", 20, 2, 44, 2, -1, 1))
sketch1.addConstraint(Sketcher.Constraint("Symmetric", 22, 2, 46, 2, -1, 1))
sketch1.addConstraint(Sketcher.Constraint("Symmetric", 13, 3, 25, 3, -2))
sketch1.addConstraint(Sketcher.Constraint("Symmetric", 51, 3, 56, 3, -2))
sketch1.addConstraint(Sketcher.Constraint("Symmetric", 55, 3, 60, 3, -2))
sketch1.addConstraint(Sketcher.Constraint("Symmetric", 17, 2, 20, 2, -2))
sketch1.addConstraint(Sketcher.Constraint("Symmetric", 15, 2, 22, 2, -2))
sketch1.addConstraint(Sketcher.Constraint("Symmetric", 10, 2, 27, 2, -2))
sketch1.addConstraint(Sketcher.Constraint("Symmetric", 8, 2, 29, 2, -2))
sketch1.addConstraint(Sketcher.Constraint("Parallel", 3, 6))
sketch1.addConstraint(Sketcher.Constraint("Perpendicular", 6, 8))
sketch1.addConstraint(Sketcher.Constraint("Parallel", 8, 11))
sketch1.addConstraint(Sketcher.Constraint("Parallel", 11, 15))
sketch1.addConstraint(Sketcher.Constraint("Parallel", 15, 18))
sketch1.addConstraint(Sketcher.Constraint("Perpendicular", 18, 20))
sketch1.addConstraint(Sketcher.Constraint("Parallel", 20, 23))
sketch1.addConstraint(Sketcher.Constraint("Parallel", 23, 27))
sketch1.addConstraint(Sketcher.Constraint("Perpendicular", 30, 32))
sketch1.addConstraint(Sketcher.Constraint("Parallel", 32, 35))
sketch1.addConstraint(Sketcher.Constraint("Parallel", 35, 39))
sketch1.addConstraint(Sketcher.Constraint("Perpendicular", 42, 44))
sketch1.addConstraint(Sketcher.Constraint("Parallel", 44, 47))
sketch1.addConstraint(Sketcher.Constraint("Parallel", 47, 53))
sketch1.addConstraint(Sketcher.Constraint("Perpendicular", 53, 62))
sketch1.addConstraint(Sketcher.Constraint("Parallel", 62, 64))
sketch1.addConstraint(Sketcher.Constraint("Perpendicular", 64, 76))
sketch1.addConstraint(Sketcher.Constraint("Horizontal", 3, 2, 6, 2))
sketch1.addConstraint(Sketcher.Constraint("Horizontal", 7, 2, 10, 2))
sketch1.addConstraint(Sketcher.Constraint("Horizontal", 22, 2, 48, 2))
sketch1.addConstraint(Sketcher.Constraint("Horizontal", 20, 2, 51, 1))
sketch1.addConstraint(Sketcher.Constraint("Horizontal", 53, 2, 61, 2))
sketch1.addConstraint(Sketcher.Constraint("Horizontal", 71, 2, 76, 2))
sketch1.addConstraint(Sketcher.Constraint("Vertical", 15, 2, 18, 2))
sketch1.addConstraint(Sketcher.Constraint("Vertical", 10, 2, 49, 1))
sketch1.addConstraint(Sketcher.Constraint("Vertical", 8, 2, 53, 2))
sketch1.addConstraint(Sketcher.Constraint("Vertical", 52, 2, 64, 2))
sketch1.addConstraint(Sketcher.Constraint("Equal", 38, 2))
sketch1.addConstraint(Sketcher.Constraint("Equal", 46, 4))
sketch1.addConstraint(Sketcher.Constraint("Equal", 43, 7))
sketch1.addConstraint(Sketcher.Constraint("Equal", 33, 17))
sketch1.addConstraint(Sketcher.Constraint("Equal", 11, 15))
sketch1.addConstraint(Sketcher.Constraint("Diameter", 72, Q("0.165 in")))
sketch1.addConstraint(Sketcher.Constraint("Radius", 1, Q("0.039 in")))
sketch1.addConstraint(Sketcher.Constraint("Radius", 49, Q("0.006 in")))
sketch1.addConstraint(Sketcher.Constraint("DistanceX", 5, 1, 5, 2, Q("0.065 in")))
sketch1.addConstraint(Sketcher.Constraint("DistanceX", 16, 2, 16, 1, Q("0.104 in")))
sketch1.addConstraint(Sketcher.Constraint("DistanceX", 52, 1, 52, 2, Q("0.002 in")))
sketch1.addConstraint(Sketcher.Constraint("DistanceX", 1, 3, -1, 1, Q("0.3545 in")))
sketch1.addConstraint(Sketcher.Constraint("DistanceX", 49, 3, -1, 1, Q("0.3165 in")))
sketch1.addConstraint(Sketcher.Constraint("DistanceX", 0, 2, 0, 1, Q("4.379631 mm")))
pad1 = doc.addObject("PartDesign::Pad", "Pad")
body.addObject(pad1)
pad1.Profile = sketch1
pad1.Length = 500

doc.recompute()
